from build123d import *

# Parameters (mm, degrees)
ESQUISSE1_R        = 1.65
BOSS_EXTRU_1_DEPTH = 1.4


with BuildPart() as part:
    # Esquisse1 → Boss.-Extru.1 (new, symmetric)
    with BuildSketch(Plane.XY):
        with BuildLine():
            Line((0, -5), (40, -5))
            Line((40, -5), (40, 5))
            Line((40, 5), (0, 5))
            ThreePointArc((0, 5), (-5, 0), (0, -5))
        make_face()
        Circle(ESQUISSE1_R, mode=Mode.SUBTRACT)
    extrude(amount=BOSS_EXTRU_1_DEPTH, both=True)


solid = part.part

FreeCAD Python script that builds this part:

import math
import FreeCAD as App
import Part
import Sketcher

doc = App.newDocument("Part")
body = doc.addObject("PartDesign::Body", "Body")

# Sketch on XY plane
sketch1 = doc.addObject("Sketcher::SketchObject", "Sketch")
body.addObject(sketch1)
sketch1.AttachmentSupport = (doc.XY_Plane, [""])
sketch1.MapMode = "FlatFace"
sketch1.addGeometry(Part.LineSegment(App.Vector(0, -5, 0), App.Vector(40, -5, 0)), False)
sketch1.addGeometry(Part.LineSegment(App.Vector(40, -5, 0), App.Vector(40, 5, 0)), False)
sketch1.addGeometry(Part.LineSegment(App.Vector(40, 5, 0), App.Vector(0, 5, 0)), False)
sketch1.addGeometry(Part.ArcOfCircle(Part.Circle(App.Vector(0, 0, 0), App.Vector(0, 0, 1), 5), math.radians(90), math.radians(270)), False)
sketch1.addGeometry(Part.Circle(App.Vector(0, 0, 0), App.Vector(0, 0, 1), 1.6), False)
sketch1.addConstraint(Sketcher.Constraint("Coincident", 0, 2, 1, 1))
sketch1.addConstraint(Sketcher.Constraint("Coincident", 1, 2, 2, 1))
sketch1.addConstraint(Sketcher.Constraint("Tangent", 2, 2, 3, 1))
sketch1.addConstraint(Sketcher.Constraint("Tangent", 3, 2, 0, 1))
sketch1.addConstraint(Sketcher.Constraint("Horizontal", 0))
sketch1.addConstraint(Sketcher.Constraint("Vertical", 1))
sketch1.addConstraint(Sketcher.Constraint("Horizontal", 2))
sketch1.addConstraint(Sketcher.Constraint("Coincident", 3, 3, -1, 1))
sketch1.addConstraint(Sketcher.Constraint("Coincident", 4, 3, -1, 1))
sketch1.addConstraint(Sketcher.Constraint("Radius", 3, 5.0))
sketch1.addConstraint(Sketcher.Constraint("Diameter", 4, 3.3))
sketch1.addConstraint(Sketcher.Constraint("DistanceX", 0, 1, 0, 2, 40.0))
pad1 = doc.addObject("PartDesign::Pad", "Pad")
body.addObject(pad1)
pad1.Profile = sketch1
pad1.Length = 2.8
pad1.Midplane = True

doc.recompute()
